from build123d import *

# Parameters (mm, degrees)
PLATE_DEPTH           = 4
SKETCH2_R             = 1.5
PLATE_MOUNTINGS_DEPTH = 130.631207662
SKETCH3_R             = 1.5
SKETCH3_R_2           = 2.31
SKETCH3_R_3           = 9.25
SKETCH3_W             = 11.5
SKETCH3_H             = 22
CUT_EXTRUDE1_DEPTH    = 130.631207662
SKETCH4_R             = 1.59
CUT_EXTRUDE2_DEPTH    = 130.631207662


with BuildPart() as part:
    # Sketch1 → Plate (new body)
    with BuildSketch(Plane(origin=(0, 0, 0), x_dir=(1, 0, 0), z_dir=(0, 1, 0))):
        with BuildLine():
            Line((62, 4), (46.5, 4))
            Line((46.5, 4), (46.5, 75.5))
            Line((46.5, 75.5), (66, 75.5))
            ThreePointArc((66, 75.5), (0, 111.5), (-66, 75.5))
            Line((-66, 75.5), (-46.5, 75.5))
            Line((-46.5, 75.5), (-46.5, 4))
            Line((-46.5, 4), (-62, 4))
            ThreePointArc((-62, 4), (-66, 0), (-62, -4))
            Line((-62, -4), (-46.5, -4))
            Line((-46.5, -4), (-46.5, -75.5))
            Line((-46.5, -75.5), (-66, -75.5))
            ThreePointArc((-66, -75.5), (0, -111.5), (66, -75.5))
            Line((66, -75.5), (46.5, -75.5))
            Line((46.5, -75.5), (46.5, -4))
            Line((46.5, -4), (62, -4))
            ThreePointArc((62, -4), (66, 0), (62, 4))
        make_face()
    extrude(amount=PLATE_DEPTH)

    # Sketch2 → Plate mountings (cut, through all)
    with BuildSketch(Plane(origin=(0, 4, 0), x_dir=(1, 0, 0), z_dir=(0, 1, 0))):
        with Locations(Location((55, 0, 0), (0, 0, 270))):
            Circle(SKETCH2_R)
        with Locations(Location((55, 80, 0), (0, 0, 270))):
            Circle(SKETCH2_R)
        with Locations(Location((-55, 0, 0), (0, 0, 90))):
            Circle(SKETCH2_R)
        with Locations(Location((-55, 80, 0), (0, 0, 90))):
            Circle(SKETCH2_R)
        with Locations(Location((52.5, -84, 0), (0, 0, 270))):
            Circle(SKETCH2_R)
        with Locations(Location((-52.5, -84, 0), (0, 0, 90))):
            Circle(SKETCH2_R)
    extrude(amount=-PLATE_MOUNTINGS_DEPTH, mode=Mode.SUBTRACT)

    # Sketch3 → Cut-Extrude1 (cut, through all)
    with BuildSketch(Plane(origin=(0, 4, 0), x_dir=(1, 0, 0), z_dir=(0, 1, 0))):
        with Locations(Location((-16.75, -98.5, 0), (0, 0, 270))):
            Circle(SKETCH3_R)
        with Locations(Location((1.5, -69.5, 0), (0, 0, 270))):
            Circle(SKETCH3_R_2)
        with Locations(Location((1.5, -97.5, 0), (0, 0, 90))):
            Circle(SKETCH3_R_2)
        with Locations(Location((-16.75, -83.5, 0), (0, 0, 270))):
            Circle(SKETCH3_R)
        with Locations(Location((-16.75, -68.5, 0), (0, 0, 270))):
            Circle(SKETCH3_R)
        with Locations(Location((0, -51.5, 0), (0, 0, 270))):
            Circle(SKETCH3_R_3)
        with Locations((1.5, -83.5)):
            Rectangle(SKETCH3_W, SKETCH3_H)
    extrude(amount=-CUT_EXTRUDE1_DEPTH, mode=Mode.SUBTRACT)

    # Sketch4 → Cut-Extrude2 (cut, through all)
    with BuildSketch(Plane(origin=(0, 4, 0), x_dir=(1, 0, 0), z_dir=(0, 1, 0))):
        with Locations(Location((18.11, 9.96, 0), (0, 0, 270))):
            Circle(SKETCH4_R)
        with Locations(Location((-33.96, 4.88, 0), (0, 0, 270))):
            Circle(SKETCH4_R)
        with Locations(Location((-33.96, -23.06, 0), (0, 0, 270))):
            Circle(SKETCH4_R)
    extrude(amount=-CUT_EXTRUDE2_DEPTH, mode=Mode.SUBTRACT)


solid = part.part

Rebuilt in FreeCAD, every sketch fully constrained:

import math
import FreeCAD as App
import Part
import Sketcher
from FreeCAD import Vector
Q = App.Units.Quantity


def add_polygon(sketch, points):
    """Adds a closed chain of lines whose ends are joined by coincident constraints."""
    first, n = sketch.GeometryCount, len(points)
    for a, b in zip(points, points[1:] + points[:1]):
        sketch.addGeometry(Part.LineSegment(App.Vector(*a, 0), App.Vector(*b, 0)), False)
    for i in range(n):
        sketch.addConstraint(Sketcher.Constraint("Coincident", first + i, 2, first + (i + 1) % n, 1))

doc = App.newDocument("Part")
params = doc.addObject("Spreadsheet::Sheet", "Params")
for row, (alias, value) in enumerate([
    ("sketch1_radius", "4 mm"),
    ("sketch1_radius2", "78.5 mm"),
    ("sketch1_width", "15.5 mm"),
    ("sketch1_width2", "19.5 mm"),
    ("sketch1_height", "71.5 mm"),
    ("pad1_length", "4 mm"),
    ("sketch2_diameter", "3 mm"),
    ("sketch3_diameter", "3 mm"),
    ("sketch3_diameter2", "18.5 mm"),
    ("sketch3_diameter3", "4.62 mm"),
    ("sketch3_height", "22 mm"),
    ("sketch3_width", "11.5 mm"),
    ("sketch4_diameter", "3.18 mm"),
], start=1):
    params.set(f"A{row}", alias)
    params.set(f"B{row}", "=" + value)
    params.setAlias(f"B{row}", alias)

body = doc.addObject("PartDesign::Body", "Body")

# Sketch on XZ plane
sketch1 = doc.addObject("Sketcher::SketchObject", "Sketch")
body.addObject(sketch1)
sketch1.AttachmentSupport = (doc.XZ_Plane, [""])
sketch1.MapMode = "FlatFace"
sketch1.addGeometry([
    Part.LineSegment(Vector(62, -4, 0), Vector(46.5, -4, 0)),  # 0
    Part.LineSegment(Vector(46.5, -4, 0), Vector(46.5, -75.5, 0)),  # 1
    Part.LineSegment(Vector(46.5, -75.5, 0), Vector(66, -75.5, 0)),  # 2
    Part.ArcOfCircle(Part.Circle(Vector(0, -33, 0), Vector(0, 0, 1), 78.5), math.radians(-147), math.radians(-33)),  # 3
    Part.LineSegment(Vector(-66, -75.5, 0), Vector(-46.5, -75.5, 0)),  # 4
    Part.LineSegment(Vector(-46.5, -75.5, 0), Vector(-46.5, -4, 0)),  # 5
    Part.LineSegment(Vector(-46.5, -4, 0), Vector(-62, -4, 0)),  # 6
    Part.ArcOfCircle(Part.Circle(Vector(-62, 0, 0), Vector(0, 0, 1), 4), math.radians(90), math.radians(270)),  # 7
    Part.LineSegment(Vector(-62, 4, 0), Vector(-46.5, 4, 0)),  # 8
    Part.LineSegment(Vector(-46.5, 4, 0), Vector(-46.5, 75.5, 0)),  # 9
    Part.LineSegment(Vector(-46.5, 75.5, 0), Vector(-66, 75.5, 0)),  # 10
    Part.ArcOfCircle(Part.Circle(Vector(0, 33, 0), Vector(0, 0, 1), 78.5), math.radians(33), math.radians(147)),  # 11
    Part.LineSegment(Vector(66, 75.5, 0), Vector(46.5, 75.5, 0)),  # 12
    Part.LineSegment(Vector(46.5, 75.5, 0), Vector(46.5, 4, 0)),  # 13
    Part.LineSegment(Vector(46.5, 4, 0), Vector(62, 4, 0)),  # 14
    Part.ArcOfCircle(Part.Circle(Vector(62, 0, 0), Vector(0, 0, 1), 4), math.radians(-90), math.radians(90)),  # 15
], False)
sketch1.addConstraint([
    Sketcher.Constraint("Coincident", 0, 2, 1, 1),
    Sketcher.Constraint("Coincident", 1, 2, 2, 1),
    Sketcher.Constraint("Coincident", 2, 2, 3, 2),
    Sketcher.Constraint("Coincident", 3, 1, 4, 1),
    Sketcher.Constraint("Coincident", 4, 2, 5, 1),
    Sketcher.Constraint("Coincident", 5, 2, 6, 1),
    Sketcher.Constraint("Tangent", 6, 2, 7, 2),
    Sketcher.Constraint("Tangent", 7, 1, 8, 1),
    Sketcher.Constraint("Coincident", 8, 2, 9, 1),
    Sketcher.Constraint("Coincident", 9, 2, 10, 1),
    Sketcher.Constraint("Coincident", 10, 2, 11, 2),
    Sketcher.Constraint("Coincident", 11, 1, 12, 1),
    Sketcher.Constraint("Coincident", 12, 2, 13, 1),
    Sketcher.Constraint("Coincident", 13, 2, 14, 1),
    Sketcher.Constraint("Tangent", 14, 2, 15, 2),
    Sketcher.Constraint("Tangent", 15, 1, 0, 1),
    Sketcher.Constraint("Horizontal", 0),
    Sketcher.Constraint("Vertical", 1),
    Sketcher.Constraint("Horizontal", 2),
    Sketcher.Constraint("Horizontal", 4),
    Sketcher.Constraint("Vertical", 5),
    Sketcher.Constraint("Horizontal", 6),
    Sketcher.Constraint("Horizontal", 8),
    Sketcher.Constraint("Vertical", 9),
    Sketcher.Constraint("Horizontal", 10),
    Sketcher.Constraint("Horizontal", 12),
    Sketcher.Constraint("Vertical", 13),
    Sketcher.Constraint("Horizontal", 14),
    Sketcher.Constraint("Equal", 3, 11),
    Sketcher.Constraint("Equal", 7, 15),
    Sketcher.Constraint("Symmetric", 3, 3, 11, 3, -1, 1),
    Sketcher.Constraint("Symmetric", 7, 3, 15, 3, -1, 1),
    Sketcher.Constraint("Symmetric", 1, 2, 9, 2, -1, 1),
    Sketcher.Constraint("Symmetric", 4, 2, 12, 2, -1, 1),
    Sketcher.Constraint("Symmetric", 2, 2, 3, 1, -2),
    Sketcher.Constraint("Symmetric", 0, 2, 5, 2, -2),
    Sketcher.Constraint("Radius", 7, Q("4 mm")),
    Sketcher.Constraint("Radius", 3, Q("78.5 mm")),
    Sketcher.Constraint("DistanceX", 0, 2, 0, 1, Q("15.5 mm")),
    Sketcher.Constraint("DistanceX", 2, 1, 2, 2, Q("19.5 mm")),
    Sketcher.Constraint("DistanceY", 1, 2, 1, 1, Q("71.5 mm")),
    Sketcher.Constraint("DistanceY", 3, 3, -1, 1, Q("33 mm")),
])
sketch1.setExpression("Constraints[36]", "Params.sketch1_radius")
sketch1.setExpression("Constraints[37]", "Params.sketch1_radius2")
sketch1.setExpression("Constraints[38]", "Params.sketch1_width")
sketch1.setExpression("Constraints[39]", "Params.sketch1_width2")
sketch1.setExpression("Constraints[40]", "Params.sketch1_height")
pad1 = doc.addObject("PartDesign::Pad", "Pad")
body.addObject(pad1)
pad1.Profile = sketch1
pad1.setExpression("Length", "Params.pad1_length")
pad1.Reversed = True

# Sketch on XZ plane
sketch2 = doc.addObject("Sketcher::SketchObject", "Sketch001")
body.addObject(sketch2)
sketch2.AttachmentSupport = (doc.XZ_Plane, [""])
sketch2.MapMode = "FlatFace"
sketch2.AttachmentOffset = App.Placement(Vector(0, 0, -4), App.Rotation())
sketch2.addGeometry([
    Part.Circle(Vector(55, 0, 0), Vector(0, 0, 1), 1.5),  # 0
    Part.Circle(Vector(55, -80, 0), Vector(0, 0, 1), 1.5),  # 1
    Part.Circle(Vector(-55, 0, 0), Vector(0, 0, 1), 1.5),  # 2
    Part.Circle(Vector(-55, -80, 0), Vector(0, 0, 1), 1.5),  # 3
    Part.Circle(Vector(52.5, 84, 0), Vector(0, 0, 1), 1.5),  # 4
    Part.Circle(Vector(-52.5, 84, 0), Vector(0, 0, 1), 1.5),  # 5
], False)
sketch2.addConstraint([
    Sketcher.Constraint("Equal", 0, 1),
    Sketcher.Constraint("Equal", 1, 2),
    Sketcher.Constraint("Equal", 2, 3),
    Sketcher.Constraint("Equal", 3, 4),
    Sketcher.Constraint("Equal", 4, 5),
    Sketcher.Constraint("Symmetric", 0, 3, 2, 3, -1, 1),
    Sketcher.Constraint("Symmetric", 1, 3, 3, 3, -2),
    Sketcher.Constraint("Symmetric", 4, 3, 5, 3, -2),
    Sketcher.Constraint("PointOnObject", 0, 3, -1),
    Sketcher.Constraint("Vertical", 0, 3, 1, 3),
    Sketcher.Constraint("Diameter", 0, Q("3 mm")),
    Sketcher.Constraint("DistanceX", -1, 1, 0, 3, Q("55 mm")),
    Sketcher.Constraint("DistanceY", 1, 3, -1, 1, Q("80 mm")),
    Sketcher.Constraint("DistanceY", -1, 1, 4, 3, Q("84 mm")),
    Sketcher.Constraint("DistanceX", 5, 3, 4, 3, Q("105 mm")),
])
sketch2.setExpression("Constraints[10]", "Params.sketch2_diameter")
pocket1 = doc.addObject("PartDesign::Pocket", "Pocket")
body.addObject(pocket1)
pocket1.Profile = sketch2
pocket1.Type = "ThroughAll"
pocket1.Reversed = True

# Sketch on XZ plane
sketch3 = doc.addObject("Sketcher::SketchObject", "Sketch002")
body.addObject(sketch3)
sketch3.AttachmentSupport = (doc.XZ_Plane, [""])
sketch3.MapMode = "FlatFace"
sketch3.AttachmentOffset = App.Placement(Vector(0, 0, -4), App.Rotation())
sketch3.addGeometry(Part.Circle(Vector(-16.8, 98.5, 0), Vector(0, 0, 1), 1.5), False)  # 0
sketch3.addGeometry(Part.Circle(Vector(1.5, 69.5, 0), Vector(0, 0, 1), 2.3), False)  # 1
sketch3.addGeometry(Part.Circle(Vector(1.5, 97.5, 0), Vector(0, 0, 1), 2.3), False)  # 2
sketch3.addGeometry(Part.Circle(Vector(-16.8, 83.5, 0), Vector(0, 0, 1), 1.5), False)  # 3
sketch3.addGeometry(Part.Circle(Vector(-16.8, 68.5, 0), Vector(0, 0, 1), 1.5), False)  # 4
sketch3.addGeometry(Part.Circle(Vector(0, 51.5, 0), Vector(0, 0, 1), 9.2), False)  # 5
add_polygon(sketch3, [(-4.2, 72.5), (-4.2, 94.5), (7.2, 94.5), (7.2, 72.5)])  # lines 6-9
sketch3.addConstraint([
    Sketcher.Constraint("Vertical", 6),
    Sketcher.Constraint("Horizontal", 7),
    Sketcher.Constraint("Vertical", 8),
    Sketcher.Constraint("Horizontal", 9),
    Sketcher.Constraint("Equal", 1, 2),
    Sketcher.Constraint("Equal", 0, 3),
    Sketcher.Constraint("Equal", 3, 4),
    Sketcher.Constraint("PointOnObject", 5, 3, -2),
    Sketcher.Constraint("Vertical", 1, 3, 2, 3),
    Sketcher.Constraint("Vertical", 0, 3, 3, 3),
    Sketcher.Constraint("Vertical", 3, 3, 4, 3),
    Sketcher.Constraint("Diameter", 0, Q("3 mm")),
    Sketcher.Constraint("Diameter", 5, Q("18.5 mm")),
    Sketcher.Constraint("Diameter", 1, Q("4.62 mm")),
    Sketcher.Constraint("DistanceY", 6, 1, 6, 2, Q("22 mm")),
    Sketcher.Constraint("DistanceX", 7, 1, 7, 2, Q("11.5 mm")),
    Sketcher.Constraint("DistanceY", 1, 3, 0, 3, Q("29 mm")),
    Sketcher.Constraint("DistanceY", 2, 3, 0, 3, Q("1 mm")),
    Sketcher.Constraint("DistanceY", 3, 3, 0, 3, Q("15 mm")),
    Sketcher.Constraint("DistanceY", 4, 3, 3, 3, Q("15 mm")),
    Sketcher.Constraint("DistanceY", 5, 3, 1, 3, Q("18 mm")),
    Sketcher.Constraint("DistanceY", 6, 2, 2, 3, Q("3 mm")),
    Sketcher.Constraint("DistanceX", 0, 3, 7, 2, Q("24 mm")),
    Sketcher.Constraint("DistanceY", -1, 1, 0, 3, Q("98.5 mm")),
    Sketcher.Constraint("DistanceX", -1, 1, 1, 3, Q("1.5 mm")),
    Sketcher.Constraint("DistanceX", 0, 3, -1, 1, Q("16.75 mm")),
])
sketch3.setExpression("Constraints[15]", "Params.sketch3_diameter")
sketch3.setExpression("Constraints[16]", "Params.sketch3_diameter2")
sketch3.setExpression("Constraints[17]", "Params.sketch3_diameter3")
sketch3.setExpression("Constraints[18]", "Params.sketch3_height")
sketch3.setExpression("Constraints[19]", "Params.sketch3_width")
pocket2 = doc.addObject("PartDesign::Pocket", "Pocket001")
body.addObject(pocket2)
pocket2.Profile = sketch3
pocket2.Type = "ThroughAll"
pocket2.Reversed = True

# Sketch on XZ plane
sketch4 = doc.addObject("Sketcher::SketchObject", "Sketch003")
body.addObject(sketch4)
sketch4.AttachmentSupport = (doc.XZ_Plane, [""])
sketch4.MapMode = "FlatFace"
sketch4.AttachmentOffset = App.Placement(Vector(0, 0, -4), App.Rotation())
sketch4.addGeometry([
    Part.Circle(Vector(18.1, -10, 0), Vector(0, 0, 1), 1.6),
    Part.Circle(Vector(-34, -4.9, 0), Vector(0, 0, 1), 1.6),
    Part.Circle(Vector(-34, 23.1, 0), Vector(0, 0, 1), 1.6),
], False)
sketch4.addConstraint([
    Sketcher.Constraint("Equal", 0, 1),
    Sketcher.Constraint("Equal", 1, 2),
    Sketcher.Constraint("Vertical", 1, 3, 2, 3),
    Sketcher.Constraint("Diameter", 0, Q("3.18 mm")),
    Sketcher.Constraint("DistanceX", -1, 1, 0, 3, Q("18.11 mm")),
    Sketcher.Constraint("DistanceY", 0, 3, -1, 1, Q("9.96 mm")),
    Sketcher.Constraint("DistanceX", 1, 3, -1, 1, Q("33.96 mm")),
    Sketcher.Constraint("DistanceY", 1, 3, -1, 1, Q("4.88 mm")),
    Sketcher.Constraint("DistanceY", -1, 1, 2, 3, Q("23.06 mm")),
])
sketch4.setExpression("Constraints[3]", "Params.sketch4_diameter")
pocket3 = doc.addObject("PartDesign::Pocket", "Pocket002")
body.addObject(pocket3)
pocket3.Profile = sketch4
pocket3.Type = "ThroughAll"
pocket3.Reversed = True

doc.recompute()
